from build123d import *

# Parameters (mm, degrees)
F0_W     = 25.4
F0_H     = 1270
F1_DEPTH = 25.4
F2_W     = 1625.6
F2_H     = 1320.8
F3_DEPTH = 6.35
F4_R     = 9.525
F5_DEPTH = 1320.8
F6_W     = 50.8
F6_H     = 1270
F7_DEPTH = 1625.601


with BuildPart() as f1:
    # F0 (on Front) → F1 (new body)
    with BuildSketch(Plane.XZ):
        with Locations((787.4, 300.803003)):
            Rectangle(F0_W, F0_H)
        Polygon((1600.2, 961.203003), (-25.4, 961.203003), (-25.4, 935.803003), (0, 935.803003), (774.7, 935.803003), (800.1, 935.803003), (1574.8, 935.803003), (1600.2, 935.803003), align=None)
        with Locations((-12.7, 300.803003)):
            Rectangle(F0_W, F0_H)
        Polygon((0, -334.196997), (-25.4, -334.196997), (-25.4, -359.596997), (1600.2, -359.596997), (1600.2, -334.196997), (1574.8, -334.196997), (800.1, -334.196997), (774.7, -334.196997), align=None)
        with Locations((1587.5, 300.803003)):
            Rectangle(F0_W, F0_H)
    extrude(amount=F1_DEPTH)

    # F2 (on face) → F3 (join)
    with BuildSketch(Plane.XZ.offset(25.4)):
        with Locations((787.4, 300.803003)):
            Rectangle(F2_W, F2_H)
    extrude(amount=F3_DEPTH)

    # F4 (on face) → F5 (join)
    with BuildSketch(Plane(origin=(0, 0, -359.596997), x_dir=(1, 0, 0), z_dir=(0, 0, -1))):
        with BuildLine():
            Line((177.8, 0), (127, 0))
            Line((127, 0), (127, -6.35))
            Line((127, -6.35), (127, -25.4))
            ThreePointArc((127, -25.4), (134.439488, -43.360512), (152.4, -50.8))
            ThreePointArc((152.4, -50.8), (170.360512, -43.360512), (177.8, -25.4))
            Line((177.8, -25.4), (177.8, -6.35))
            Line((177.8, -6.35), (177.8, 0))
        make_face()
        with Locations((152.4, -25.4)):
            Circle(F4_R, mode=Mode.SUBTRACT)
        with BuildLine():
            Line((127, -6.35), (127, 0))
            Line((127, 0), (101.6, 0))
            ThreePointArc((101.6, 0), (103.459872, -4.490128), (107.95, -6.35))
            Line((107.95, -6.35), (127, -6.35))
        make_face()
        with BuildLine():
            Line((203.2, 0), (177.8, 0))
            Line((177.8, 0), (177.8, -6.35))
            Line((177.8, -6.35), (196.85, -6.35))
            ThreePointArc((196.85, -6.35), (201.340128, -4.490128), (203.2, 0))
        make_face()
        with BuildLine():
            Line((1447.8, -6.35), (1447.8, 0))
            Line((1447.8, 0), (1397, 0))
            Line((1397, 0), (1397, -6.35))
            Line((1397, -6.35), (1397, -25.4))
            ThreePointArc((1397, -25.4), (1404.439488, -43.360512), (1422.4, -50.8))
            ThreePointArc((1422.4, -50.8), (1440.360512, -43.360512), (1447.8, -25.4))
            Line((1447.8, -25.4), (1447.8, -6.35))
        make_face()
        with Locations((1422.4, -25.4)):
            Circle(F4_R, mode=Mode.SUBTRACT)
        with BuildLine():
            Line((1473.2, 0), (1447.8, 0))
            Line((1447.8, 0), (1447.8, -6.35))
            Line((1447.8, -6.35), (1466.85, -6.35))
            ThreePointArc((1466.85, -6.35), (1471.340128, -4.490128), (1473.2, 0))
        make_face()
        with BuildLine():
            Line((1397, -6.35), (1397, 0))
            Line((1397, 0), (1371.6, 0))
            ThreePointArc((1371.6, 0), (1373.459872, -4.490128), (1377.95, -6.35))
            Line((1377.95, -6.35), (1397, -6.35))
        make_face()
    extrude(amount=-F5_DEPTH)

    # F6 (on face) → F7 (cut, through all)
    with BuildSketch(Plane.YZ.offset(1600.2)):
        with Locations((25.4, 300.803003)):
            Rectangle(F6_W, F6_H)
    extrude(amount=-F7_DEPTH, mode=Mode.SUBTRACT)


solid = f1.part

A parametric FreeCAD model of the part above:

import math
import FreeCAD as App
import Part
import Sketcher
Q = App.Units.Quantity


def add_polygon(sketch, points):
    """Adds a closed chain of lines whose ends are joined by coincident constraints."""
    first, n = sketch.GeometryCount, len(points)
    for a, b in zip(points, points[1:] + points[:1]):
        sketch.addGeometry(Part.LineSegment(App.Vector(*a, 0), App.Vector(*b, 0)), False)
    for i in range(n):
        sketch.addConstraint(Sketcher.Constraint("Coincident", first + i, 2, first + (i + 1) % n, 1))

doc = App.newDocument("Part")
params = doc.addObject("Spreadsheet::Sheet", "Params")
for row, (alias, value) in enumerate([
    ("sketch1_width", "64 in"),
    ("sketch1_height", "52 in"),
    ("sketch1_height2", "50 in"),
    ("sketch1_width2", "30.5 in"),
    ("pad1_length", "1 in"),
    ("sketch2_width", "64 in"),
    ("sketch2_height", "52 in"),
    ("pad2_length", "0.25 in"),
    ("sketch3_radius", "1 in"),
    ("sketch3_diameter", "0.75 in"),
    ("sketch3_width", "4 in"),
    ("sketch3_radius2", "0.25 in"),
    ("pad3_length", "52 in"),
    ("sketch4_width", "2 in"),
    ("sketch4_height", "50 in"),
], start=1):
    params.set(f"A{row}", alias)
    params.set(f"B{row}", "=" + value)
    params.setAlias(f"B{row}", alias)

body = doc.addObject("PartDesign::Body", "Body")

# Sketch on XZ plane
sketch1 = body.newObject("Sketcher::SketchObject", "Sketch")
sketch1.AttachmentSupport = (doc.getObject("XZ_Plane"), [""])
sketch1.MapMode = "FlatFace"
add_polygon(sketch1, [(1600.2, 961.203003), (-25.4, 961.203003), (-25.4, -359.596997), (1600.2, -359.596997)])  # lines 0-3
add_polygon(sketch1, [(774.7, 935.803003), (774.7, -334.196997), (0, -334.196997), (0, 935.803003)])  # lines 4-7
add_polygon(sketch1, [(800.1, -334.196997), (800.1, 935.803003), (1574.8, 935.803003), (1574.8, -334.196997)])  # lines 8-11
sketch1.addConstraint([
    Sketcher.Constraint("Horizontal", 0),
    Sketcher.Constraint("Vertical", 1),
    Sketcher.Constraint("Horizontal", 2),
    Sketcher.Constraint("Vertical", 3),
    Sketcher.Constraint("Vertical", 4),
    Sketcher.Constraint("Horizontal", 5),
    Sketcher.Constraint("Vertical", 6),
    Sketcher.Constraint("Horizontal", 7),
    Sketcher.Constraint("Vertical", 8),
    Sketcher.Constraint("Horizontal", 9),
    Sketcher.Constraint("Vertical", 10),
    Sketcher.Constraint("Horizontal", 11),
    Sketcher.Constraint("PointOnObject", 5, 2, -2),
    Sketcher.Constraint("Horizontal", 7, 2, 8, 2),
    Sketcher.Constraint("Horizontal", 5, 2, 10, 2),
    Sketcher.Constraint("Equal", 7, 9),
    Sketcher.Constraint("DistanceX", 0, 2, 0, 1, Q("64 in")),
    Sketcher.Constraint("DistanceY", 1, 2, 1, 1, Q("52 in")),
    Sketcher.Constraint("DistanceY", 4, 2, 4, 1, Q("50 in")),
    Sketcher.Constraint("DistanceX", 5, 2, 5, 1, Q("30.5 in")),
    Sketcher.Constraint("DistanceX", 0, 2, -1, 1, Q("1 in")),
    Sketcher.Constraint("DistanceX", -1, 1, 9, 2, Q("62 in")),
    Sketcher.Constraint("DistanceY", 1, 2, 4, 2, Q("1 in")),
    Sketcher.Constraint("DistanceY", -1, 1, 0, 2, Q("961.203003 mm")),
])
sketch1.setExpression("Constraints[28]", "Params.sketch1_width")
sketch1.setExpression("Constraints[29]", "Params.sketch1_height")
sketch1.setExpression("Constraints[30]", "Params.sketch1_height2")
sketch1.setExpression("Constraints[31]", "Params.sketch1_width2")
pad1 = body.newObject("PartDesign::Pad", "Pad")
pad1.Profile = sketch1
pad1.setExpression("Length", "Params.pad1_length")

# Sketch on XZ plane
sketch2 = body.newObject("Sketcher::SketchObject", "Sketch001")
sketch2.AttachmentSupport = (doc.getObject("XZ_Plane"), [""])
sketch2.MapMode = "FlatFace"
sketch2.AttachmentOffset = App.Placement(App.Vector(0, 0, 1 * 25.4), App.Rotation())
add_polygon(sketch2, [(-25.4, 961.203003), (-25.4, -359.596997), (1600.2, -359.596997), (1600.2, 961.203003)])  # lines 0-3
sketch2.addConstraint([
    Sketcher.Constraint("Vertical", 0),
    Sketcher.Constraint("Horizontal", 1),
    Sketcher.Constraint("Vertical", 2),
    Sketcher.Constraint("Horizontal", 3),
    Sketcher.Constraint("DistanceX", 1, 1, 1, 2, Q("64 in")),
    Sketcher.Constraint("DistanceY", 0, 2, 0, 1, Q("52 in")),
    Sketcher.Constraint("DistanceX", 0, 2, -1, 1, Q("1 in")),
    Sketcher.Constraint("DistanceY", 0, 2, -1, 1, Q("359.596997 mm")),
])
sketch2.setExpression("Constraints[8]", "Params.sketch2_width")
sketch2.setExpression("Constraints[9]", "Params.sketch2_height")
pad2 = body.newObject("PartDesign::Pad", "Pad001")
pad2.Profile = sketch2
pad2.setExpression("Length", "Params.pad2_length")

# Sketch on XY plane
sketch3 = body.newObject("Sketcher::SketchObject", "Sketch002")
sketch3.AttachmentSupport = (doc.getObject("XY_Plane"), [""])
sketch3.MapMode = "FlatFace"
sketch3.AttachmentOffset = App.Placement(App.Vector(0, 0, -359.596997), App.Rotation())
sketch3.addGeometry([
    Part.ArcOfCircle(Part.Circle(App.Vector(107.95, 0, 0), App.Vector(0, 0, 1), 6.35), math.radians(90.000002), math.radians(179.999998)),  # 0
    Part.LineSegment(App.Vector(107.95, 6.35, 0), App.Vector(127, 6.35, 0)),  # 1
    Part.LineSegment(App.Vector(127, 6.35, 0), App.Vector(127, 25.4, 0)),  # 2
    Part.ArcOfCircle(Part.Circle(App.Vector(152.400001, 25.399999, 0), App.Vector(0, 0, 1), 25.400001), math.radians(90.000002), math.radians(179.999998)),  # 3
    Part.ArcOfCircle(Part.Circle(App.Vector(152.399999, 25.399999, 0), App.Vector(0, 0, 1), 25.400001), math.radians(0.000002), math.radians(89.999998)),  # 4
    Part.LineSegment(App.Vector(177.8, 25.4, 0), App.Vector(177.8, 6.35, 0)),  # 5
    Part.LineSegment(App.Vector(177.8, 6.35, 0), App.Vector(196.85, 6.35, 0)),  # 6
    Part.ArcOfCircle(Part.Circle(App.Vector(196.85, 0, 0), App.Vector(0, 0, 1), 6.35), math.radians(0.000002), math.radians(89.999998)),  # 7
    Part.LineSegment(App.Vector(203.2, 0, 0), App.Vector(101.6, 0, 0)),  # 8
    Part.Circle(App.Vector(152.4, 25.4, 0), App.Vector(0, 0, 1), 9.525),  # 9
    Part.LineSegment(App.Vector(1397, 6.35, 0), App.Vector(1397, 25.4, 0)),  # 10
    Part.ArcOfCircle(Part.Circle(App.Vector(1422.400001, 25.399999, 0), App.Vector(0, 0, 1), 25.400001), math.radians(90.000002), math.radians(179.999998)),  # 11
    Part.ArcOfCircle(Part.Circle(App.Vector(1422.399999, 25.399999, 0), App.Vector(0, 0, 1), 25.400001), math.radians(0.000002), math.radians(89.999998)),  # 12
    Part.LineSegment(App.Vector(1447.8, 25.4, 0), App.Vector(1447.8, 6.35, 0)),  # 13
    Part.LineSegment(App.Vector(1447.8, 6.35, 0), App.Vector(1466.85, 6.35, 0)),  # 14
    Part.ArcOfCircle(Part.Circle(App.Vector(1466.85, 0, 0), App.Vector(0, 0, 1), 6.35), math.radians(0.000002), math.radians(89.999998)),  # 15
    Part.LineSegment(App.Vector(1473.2, 0, 0), App.Vector(1371.6, 0, 0)),  # 16
    Part.ArcOfCircle(Part.Circle(App.Vector(1377.95, 0, 0), App.Vector(0, 0, 1), 6.35), math.radians(90.000002), math.radians(179.999998)),  # 17
    Part.LineSegment(App.Vector(1377.95, 6.35, 0), App.Vector(1397, 6.35, 0)),  # 18
    Part.Circle(App.Vector(1422.4, 25.4, 0), App.Vector(0, 0, 1), 9.525),  # 19
], False)
sketch3.addConstraint([
    Sketcher.Constraint("Tangent", 0, 1, 1, 1),
    Sketcher.Constraint("Coincident", 1, 2, 2, 1),
    Sketcher.Constraint("Tangent", 2, 2, 3, 2),
    Sketcher.Constraint("Tangent", 3, 1, 4, 2),
    Sketcher.Constraint("Tangent", 4, 1, 5, 1),
    Sketcher.Constraint("Coincident", 5, 2, 6, 1),
    Sketcher.Constraint("Tangent", 6, 2, 7, 2),
    Sketcher.Constraint("Coincident", 7, 1, 8, 1),
    Sketcher.Constraint("Coincident", 8, 2, 0, 2),
    Sketcher.Constraint("Tangent", 10, 2, 11, 2),
    Sketcher.Constraint("Tangent", 11, 1, 12, 2),
    Sketcher.Constraint("Tangent", 12, 1, 13, 1),
    Sketcher.Constraint("Coincident", 13, 2, 14, 1),
    Sketcher.Constraint("Tangent", 14, 2, 15, 2),
    Sketcher.Constraint("Coincident", 15, 1, 16, 1),
    Sketcher.Constraint("Coincident", 16, 2, 17, 2),
    Sketcher.Constraint("Tangent", 17, 1, 18, 1),
    Sketcher.Constraint("Coincident", 18, 2, 10, 1),
    Sketcher.Constraint("Horizontal", 1),
    Sketcher.Constraint("Vertical", 2),
    Sketcher.Constraint("Vertical", 5),
    Sketcher.Constraint("Horizontal", 6),
    Sketcher.Constraint("Horizontal", 8),
    Sketcher.Constraint("Vertical", 10),
    Sketcher.Constraint("Vertical", 13),
    Sketcher.Constraint("Horizontal", 14),
    Sketcher.Constraint("Horizontal", 16),
    Sketcher.Constraint("Horizontal", 18),
    Sketcher.Constraint("Coincident", 9, 3, 3, 3),
    Sketcher.Constraint("Coincident", 19, 3, 11, 3),
    Sketcher.Constraint("Equal", 3, 4),
    Sketcher.Constraint("Equal", 0, 7),
    Sketcher.Constraint("Equal", 4, 11),
    Sketcher.Constraint("Equal", 11, 12),
    Sketcher.Constraint("Equal", 7, 15),
    Sketcher.Constraint("Equal", 15, 17),
    Sketcher.Constraint("Equal", 9, 19),
    Sketcher.Constraint("PointOnObject", 0, 3, -1),
    Sketcher.Constraint("PointOnObject", 7, 3, -1),
    Sketcher.Constraint("PointOnObject", 15, 3, -1),
    Sketcher.Constraint("PointOnObject", 17, 3, -1),
    Sketcher.Constraint("PointOnObject", 7, 1, -1),
    Sketcher.Constraint("PointOnObject", 15, 1, -1),
    Sketcher.Constraint("Horizontal", 9, 3, 11, 3),
    Sketcher.Constraint("Vertical", 9, 3, 3, 1),
    Sketcher.Constraint("Vertical", 19, 3, 11, 1),
    Sketcher.Constraint("Equal", 1, 6),
    Sketcher.Constraint("Equal", 6, 14),
    Sketcher.Constraint("Equal", 8, 16),
    Sketcher.Constraint("Equal", 18, 2),
    Sketcher.Constraint("Radius", 3, Q("1 in")),
    Sketcher.Constraint("Diameter", 9, Q("0.75 in")),
    Sketcher.Constraint("DistanceX", 8, 2, 8, 1, Q("4 in")),
    Sketcher.Constraint("Radius", 0, Q("0.25 in")),
    Sketcher.Constraint("DistanceX", -1, 1, 3, 3, Q("6 in")),
    Sketcher.Constraint("DistanceX", -1, 1, 11, 3, Q("56 in")),
])
sketch3.setExpression("Constraints[50]", "Params.sketch3_radius")
sketch3.setExpression("Constraints[51]", "Params.sketch3_diameter")
sketch3.setExpression("Constraints[52]", "Params.sketch3_width")
sketch3.setExpression("Constraints[53]", "Params.sketch3_radius2")
pad3 = body.newObject("PartDesign::Pad", "Pad002")
pad3.Profile = sketch3
pad3.setExpression("Length", "Params.pad3_length")

# Sketch on YZ plane
sketch4 = body.newObject("Sketcher::SketchObject", "Sketch003")
sketch4.AttachmentSupport = (doc.getObject("YZ_Plane"), [""])
sketch4.MapMode = "FlatFace"
sketch4.AttachmentOffset = App.Placement(App.Vector(0, 0, 63 * 25.4), App.Rotation())
add_polygon(sketch4, [(0, 935.803003), (0, -334.196997), (50.8, -334.196997), (50.8, 935.803003)])  # lines 0-3
sketch4.addConstraint([
    Sketcher.Constraint("Vertical", 0),
    Sketcher.Constraint("Horizontal", 1),
    Sketcher.Constraint("Vertical", 2),
    Sketcher.Constraint("Horizontal", 3),
    Sketcher.Constraint("PointOnObject", 0, 2, -2),
    Sketcher.Constraint("DistanceX", 1, 1, 1, 2, Q("2 in")),
    Sketcher.Constraint("DistanceY", 0, 2, 0, 1, Q("50 in")),
    Sketcher.Constraint("DistanceY", 0, 2, -1, 1, Q("334.196997 mm")),
])
sketch4.setExpression("Constraints[9]", "Params.sketch4_width")
sketch4.setExpression("Constraints[10]", "Params.sketch4_height")
pocket1 = body.newObject("PartDesign::Pocket", "Pocket")
pocket1.Profile = sketch4
pocket1.Type = "ThroughAll"

doc.recompute()
